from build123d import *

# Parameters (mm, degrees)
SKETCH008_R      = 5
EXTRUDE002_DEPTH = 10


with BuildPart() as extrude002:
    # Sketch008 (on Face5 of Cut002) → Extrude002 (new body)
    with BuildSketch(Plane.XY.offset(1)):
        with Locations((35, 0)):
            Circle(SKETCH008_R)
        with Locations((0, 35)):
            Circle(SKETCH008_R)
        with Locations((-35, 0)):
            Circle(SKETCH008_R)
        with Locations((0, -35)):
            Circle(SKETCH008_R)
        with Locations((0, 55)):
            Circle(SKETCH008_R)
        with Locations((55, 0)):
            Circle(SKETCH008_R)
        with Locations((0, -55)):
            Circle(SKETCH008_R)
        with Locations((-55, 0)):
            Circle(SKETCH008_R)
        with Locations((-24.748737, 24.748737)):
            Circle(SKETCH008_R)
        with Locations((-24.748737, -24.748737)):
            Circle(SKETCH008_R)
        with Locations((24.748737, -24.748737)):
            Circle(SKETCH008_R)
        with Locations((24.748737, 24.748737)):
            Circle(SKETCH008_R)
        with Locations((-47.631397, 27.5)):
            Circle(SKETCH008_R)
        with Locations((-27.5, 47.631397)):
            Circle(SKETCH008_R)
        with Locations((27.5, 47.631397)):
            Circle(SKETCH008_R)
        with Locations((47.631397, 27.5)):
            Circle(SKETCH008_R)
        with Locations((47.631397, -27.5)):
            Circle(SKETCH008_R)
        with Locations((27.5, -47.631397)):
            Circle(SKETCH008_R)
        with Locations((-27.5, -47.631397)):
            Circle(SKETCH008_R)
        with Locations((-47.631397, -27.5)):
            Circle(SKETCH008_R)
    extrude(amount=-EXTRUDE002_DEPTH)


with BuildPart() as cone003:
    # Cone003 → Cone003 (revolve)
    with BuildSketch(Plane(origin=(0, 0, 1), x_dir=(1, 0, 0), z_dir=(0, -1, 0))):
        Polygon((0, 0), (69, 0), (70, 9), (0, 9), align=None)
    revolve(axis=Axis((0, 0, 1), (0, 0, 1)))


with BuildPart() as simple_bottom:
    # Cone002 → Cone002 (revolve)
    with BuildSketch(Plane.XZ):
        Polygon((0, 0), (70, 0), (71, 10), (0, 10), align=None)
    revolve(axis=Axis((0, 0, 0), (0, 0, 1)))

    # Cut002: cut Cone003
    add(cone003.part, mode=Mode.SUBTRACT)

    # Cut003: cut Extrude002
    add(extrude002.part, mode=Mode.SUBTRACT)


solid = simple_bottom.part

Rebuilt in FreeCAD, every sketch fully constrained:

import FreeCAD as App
import Part
import Sketcher
Q = App.Units.Quantity


def add_polygon(sketch, points):
    """Adds a closed chain of lines whose ends are joined by coincident constraints."""
    first, n = sketch.GeometryCount, len(points)
    for a, b in zip(points, points[1:] + points[:1]):
        sketch.addGeometry(Part.LineSegment(App.Vector(*a, 0), App.Vector(*b, 0)), False)
    for i in range(n):
        sketch.addConstraint(Sketcher.Constraint("Coincident", first + i, 2, first + (i + 1) % n, 1))

doc = App.newDocument("Part")
body = doc.addObject("PartDesign::Body", "Body")
body.AllowCompound = True

# Sketch on XY plane
sketch1 = body.newObject("Sketcher::SketchObject", "Sketch")
sketch1.AttachmentSupport = (doc.getObject("XY_Plane"), [""])
sketch1.MapMode = "FlatFace"
sketch1.AttachmentOffset = App.Placement(App.Vector(0, 0, 1), App.Rotation())
sketch1.addGeometry(Part.Circle(App.Vector(35, 0, 0), App.Vector(0, 0, 1), 5), False)
sketch1.addGeometry(Part.Circle(App.Vector(0, 35, 0), App.Vector(0, 0, 1), 5), False)
sketch1.addGeometry(Part.Circle(App.Vector(-35, 0, 0), App.Vector(0, 0, 1), 5), False)
sketch1.addGeometry(Part.Circle(App.Vector(0, -35, 0), App.Vector(0, 0, 1), 5), False)
sketch1.addGeometry(Part.Circle(App.Vector(0, 55, 0), App.Vector(0, 0, 1), 5), False)
sketch1.addGeometry(Part.Circle(App.Vector(55, 0, 0), App.Vector(0, 0, 1), 5), False)
sketch1.addGeometry(Part.Circle(App.Vector(0, -55, 0), App.Vector(0, 0, 1), 5), False)
sketch1.addGeometry(Part.Circle(App.Vector(-55, 0, 0), App.Vector(0, 0, 1), 5), False)
sketch1.addGeometry(Part.Circle(App.Vector(-25, 25, 0), App.Vector(0, 0, 1), 5), False)
sketch1.addGeometry(Part.Circle(App.Vector(-25, -25, 0), App.Vector(0, 0, 1), 5), False)
sketch1.addGeometry(Part.Circle(App.Vector(25, -25, 0), App.Vector(0, 0, 1), 5), False)
sketch1.addGeometry(Part.Circle(App.Vector(25, 25, 0), App.Vector(0, 0, 1), 5), False)
sketch1.addGeometry(Part.Circle(App.Vector(-48, 28, 0), App.Vector(0, 0, 1), 5), False)
sketch1.addGeometry(Part.Circle(App.Vector(-28, 48, 0), App.Vector(0, 0, 1), 5), False)
sketch1.addGeometry(Part.Circle(App.Vector(28, 48, 0), App.Vector(0, 0, 1), 5), False)
sketch1.addGeometry(Part.Circle(App.Vector(48, 28, 0), App.Vector(0, 0, 1), 5), False)
sketch1.addGeometry(Part.Circle(App.Vector(48, -28, 0), App.Vector(0, 0, 1), 5), False)
sketch1.addGeometry(Part.Circle(App.Vector(28, -48, 0), App.Vector(0, 0, 1), 5), False)
sketch1.addGeometry(Part.Circle(App.Vector(-28, -48, 0), App.Vector(0, 0, 1), 5), False)
sketch1.addGeometry(Part.Circle(App.Vector(-48, -28, 0), App.Vector(0, 0, 1), 5), False)
sketch1.addConstraint(Sketcher.Constraint("Equal", 0, 1))
sketch1.addConstraint(Sketcher.Constraint("Equal", 1, 2))
sketch1.addConstraint(Sketcher.Constraint("Equal", 2, 3))
sketch1.addConstraint(Sketcher.Constraint("Equal", 3, 4))
sketch1.addConstraint(Sketcher.Constraint("Equal", 4, 5))
sketch1.addConstraint(Sketcher.Constraint("Equal", 5, 6))
sketch1.addConstraint(Sketcher.Constraint("Equal", 6, 7))
sketch1.addConstraint(Sketcher.Constraint("Equal", 7, 8))
sketch1.addConstraint(Sketcher.Constraint("Equal", 8, 9))
sketch1.addConstraint(Sketcher.Constraint("Equal", 9, 10))
sketch1.addConstraint(Sketcher.Constraint("Equal", 10, 11))
sketch1.addConstraint(Sketcher.Constraint("Equal", 11, 12))
sketch1.addConstraint(Sketcher.Constraint("Equal", 12, 13))
sketch1.addConstraint(Sketcher.Constraint("Equal", 13, 14))
sketch1.addConstraint(Sketcher.Constraint("Equal", 14, 15))
sketch1.addConstraint(Sketcher.Constraint("Equal", 15, 16))
sketch1.addConstraint(Sketcher.Constraint("Equal", 16, 17))
sketch1.addConstraint(Sketcher.Constraint("Equal", 17, 18))
sketch1.addConstraint(Sketcher.Constraint("Equal", 18, 19))
sketch1.addConstraint(Sketcher.Constraint("Symmetric", 0, 3, 2, 3, -1, 1))
sketch1.addConstraint(Sketcher.Constraint("Symmetric", 1, 3, 3, 3, -1, 1))
sketch1.addConstraint(Sketcher.Constraint("Symmetric", 4, 3, 6, 3, -1, 1))
sketch1.addConstraint(Sketcher.Constraint("Symmetric", 5, 3, 7, 3, -1, 1))
sketch1.addConstraint(Sketcher.Constraint("Symmetric", 8, 3, 10, 3, -1, 1))
sketch1.addConstraint(Sketcher.Constraint("Symmetric", 9, 3, 11, 3, -1, 1))
sketch1.addConstraint(Sketcher.Constraint("Symmetric", 12, 3, 16, 3, -1, 1))
sketch1.addConstraint(Sketcher.Constraint("Symmetric", 13, 3, 17, 3, -1, 1))
sketch1.addConstraint(Sketcher.Constraint("Symmetric", 14, 3, 18, 3, -1, 1))
sketch1.addConstraint(Sketcher.Constraint("Symmetric", 15, 3, 19, 3, -1, 1))
sketch1.addConstraint(Sketcher.Constraint("Symmetric", 9, 3, 10, 3, -2))
sketch1.addConstraint(Sketcher.Constraint("Symmetric", 13, 3, 14, 3, -2))
sketch1.addConstraint(Sketcher.Constraint("Symmetric", 12, 3, 15, 3, -2))
sketch1.addConstraint(Sketcher.Constraint("PointOnObject", 0, 3, -1))
sketch1.addConstraint(Sketcher.Constraint("PointOnObject", 1, 3, -2))
sketch1.addConstraint(Sketcher.Constraint("PointOnObject", 4, 3, -2))
sketch1.addConstraint(Sketcher.Constraint("PointOnObject", 5, 3, -1))
sketch1.addConstraint(Sketcher.Constraint("Diameter", 0, Q("10 mm")))
sketch1.addConstraint(Sketcher.Constraint("DistanceX", -1, 1, 0, 3, Q("35 mm")))
sketch1.addConstraint(Sketcher.Constraint("DistanceY", -1, 1, 1, 3, Q("35 mm")))
sketch1.addConstraint(Sketcher.Constraint("DistanceY", -1, 1, 4, 3, Q("55 mm")))
sketch1.addConstraint(Sketcher.Constraint("DistanceX", -1, 1, 5, 3, Q("55 mm")))
sketch1.addConstraint(Sketcher.Constraint("DistanceY", -1, 1, 12, 3, Q("27.5 mm")))
sketch1.addConstraint(Sketcher.Constraint("DistanceX", 13, 3, -1, 1, Q("27.5 mm")))
sketch1.addConstraint(Sketcher.Constraint("DistanceX", 12, 3, 8, 3, Q("22.88266 mm")))
sketch1.addConstraint(Sketcher.Constraint("DistanceY", 8, 3, 13, 3, Q("22.88266 mm")))
sketch1.addConstraint(Sketcher.Constraint("DistanceX", 8, 3, -1, 1, Q("24.748737 mm")))
sketch1.addConstraint(Sketcher.Constraint("DistanceY", -1, 1, 8, 3, Q("24.748737 mm")))
pad1 = body.newObject("PartDesign::Pad", "Pad")
pad1.Profile = sketch1
pad1.Length = 10
pad1.Reversed = True
body2 = doc.addObject("PartDesign::Body", "Body001")

# Sketch on XZ plane
sketch2 = body2.newObject("Sketcher::SketchObject", "Sketch001")
sketch2.AttachmentSupport = (doc.getObject("XZ_Plane001"), [""])
sketch2.MapMode = "FlatFace"
add_polygon(sketch2, [(0, 1), (69, 1), (70, 10), (0, 10)])  # lines 0-3
sketch2.addConstraint(Sketcher.Constraint("Horizontal", 0))
sketch2.addConstraint(Sketcher.Constraint("Horizontal", 2))
sketch2.addConstraint(Sketcher.Constraint("Vertical", 3))
sketch2.addConstraint(Sketcher.Constraint("PointOnObject", 2, 2, -2))
sketch2.addConstraint(Sketcher.Constraint("DistanceX", 0, 1, 0, 2, Q("69 mm")))
sketch2.addConstraint(Sketcher.Constraint("DistanceX", 2, 2, 2, 1, Q("70 mm")))
sketch2.addConstraint(Sketcher.Constraint("DistanceY", 3, 2, 3, 1, Q("9 mm")))
sketch2.addConstraint(Sketcher.Constraint("DistanceY", -1, 1, 0, 2, Q("1 mm")))
revolution = body2.newObject("PartDesign::Revolution", "Revolution")
revolution.Profile = sketch2
revolution.ReferenceAxis = (sketch2, ["V_Axis"])
revolution.Angle = 360
body3 = doc.addObject("PartDesign::Body", "Body002")

# Sketch on XZ plane
sketch3 = body3.newObject("Sketcher::SketchObject", "Sketch002")
sketch3.AttachmentSupport = (doc.getObject("XZ_Plane002"), [""])
sketch3.MapMode = "FlatFace"
add_polygon(sketch3, [(0, 0), (70, 0), (71, 10), (0, 10)])  # lines 0-3
sketch3.addConstraint(Sketcher.Constraint("Horizontal", 0))
sketch3.addConstraint(Sketcher.Constraint("Horizontal", 2))
sketch3.addConstraint(Sketcher.Constraint("Vertical", 3))
sketch3.addConstraint(Sketcher.Constraint("Coincident", 3, 2, -1, 1))
sketch3.addConstraint(Sketcher.Constraint("DistanceX", 0, 1, 0, 2, Q("70 mm")))
sketch3.addConstraint(Sketcher.Constraint("DistanceX", 2, 2, 2, 1, Q("71 mm")))
sketch3.addConstraint(Sketcher.Constraint("DistanceY", 3, 2, 3, 1, Q("10 mm")))
revolution2 = body3.newObject("PartDesign::Revolution", "Revolution001")
revolution2.Profile = sketch3
revolution2.ReferenceAxis = (sketch3, ["V_Axis"])
revolution2.Angle = 360
doc.recompute()

boolean = body3.newObject("PartDesign::Boolean", "Boolean")
boolean.Type = "Cut"
boolean.addObjects([body2])
doc.recompute()

boolean2 = body3.newObject("PartDesign::Boolean", "Boolean001")
boolean2.Type = "Cut"
boolean2.addObjects([body])

doc.recompute()
